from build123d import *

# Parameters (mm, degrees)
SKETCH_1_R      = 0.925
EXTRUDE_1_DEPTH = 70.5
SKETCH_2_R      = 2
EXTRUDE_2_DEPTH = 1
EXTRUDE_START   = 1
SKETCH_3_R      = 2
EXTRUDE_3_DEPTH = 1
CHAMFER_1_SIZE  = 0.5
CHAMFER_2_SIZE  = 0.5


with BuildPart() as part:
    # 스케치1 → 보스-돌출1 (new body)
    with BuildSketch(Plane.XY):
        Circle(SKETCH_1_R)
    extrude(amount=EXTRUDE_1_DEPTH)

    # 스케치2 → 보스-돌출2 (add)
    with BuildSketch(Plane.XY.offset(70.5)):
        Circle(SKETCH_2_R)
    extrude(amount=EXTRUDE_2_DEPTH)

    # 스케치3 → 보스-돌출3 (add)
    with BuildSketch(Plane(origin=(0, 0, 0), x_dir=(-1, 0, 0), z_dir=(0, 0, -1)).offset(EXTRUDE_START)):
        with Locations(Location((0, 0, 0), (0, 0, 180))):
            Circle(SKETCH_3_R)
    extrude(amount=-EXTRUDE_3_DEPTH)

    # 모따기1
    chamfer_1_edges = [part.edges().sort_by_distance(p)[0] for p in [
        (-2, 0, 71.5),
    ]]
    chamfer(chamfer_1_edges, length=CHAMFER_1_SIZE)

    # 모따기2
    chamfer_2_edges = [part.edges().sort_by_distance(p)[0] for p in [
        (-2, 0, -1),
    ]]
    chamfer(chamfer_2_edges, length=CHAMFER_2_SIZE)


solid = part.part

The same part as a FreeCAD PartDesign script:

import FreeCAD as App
import Part
import Sketcher
from FreeCAD import Vector
Q = App.Units.Quantity


def edges_at(feature, points):
    """Names of the edges that pass closest to the given points."""
    edges = feature.Shape.Edges
    near = lambda p: min(range(len(edges)), key=lambda i: edges[i].distToShape(Part.Vertex(*p))[0])
    return sorted({f"Edge{near(p) + 1}" for p in points})

doc = App.newDocument("Part")
body = doc.addObject("PartDesign::Body", "Body")

sketch1 = body.newObject("Sketcher::SketchObject", "Sketch")
sketch1.AttachmentSupport = (doc.getObject("XY_Plane"), [""])
sketch1.MapMode = "FlatFace"
sketch1.addGeometry(Part.Circle(Vector(0, 0, 0), Vector(0, 0, 1), 0.9), False)
sketch1.addConstraint([
    Sketcher.Constraint("Coincident", 0, 3, -1, 1),
    Sketcher.Constraint("Diameter", 0, Q("1.85 mm")),
])
pad1 = body.newObject("PartDesign::Pad", "Pad")
pad1.Profile = sketch1
pad1.Length = 70.5

sketch2 = body.newObject("Sketcher::SketchObject", "Sketch001")
sketch2.AttachmentSupport = (doc.getObject("XY_Plane"), [""])
sketch2.MapMode = "FlatFace"
sketch2.AttachmentOffset = App.Placement(Vector(0, 0, 70.5), App.Rotation())
sketch2.addGeometry(Part.Circle(Vector(0, 0, 0), Vector(0, 0, 1), 2), False)
sketch2.addConstraint([
    Sketcher.Constraint("Coincident", 0, 3, -1, 1),
    Sketcher.Constraint("Diameter", 0, Q("4 mm")),
])
pad2 = body.newObject("PartDesign::Pad", "Pad001")
pad2.Profile = sketch2
pad2.Length = 1

sketch3 = body.newObject("Sketcher::SketchObject", "Sketch002")
sketch3.AttachmentSupport = (doc.getObject("XY_Plane"), [""])
sketch3.MapMode = "FlatFace"
sketch3.AttachmentOffset = App.Placement(Vector(0, 0, -1), App.Rotation())
sketch3.addGeometry(Part.Circle(Vector(0, 0, 0), Vector(0, 0, 1), 2), False)
sketch3.addConstraint([
    Sketcher.Constraint("Coincident", 0, 3, -1, 1),
    Sketcher.Constraint("Diameter", 0, Q("4 mm")),
])
pad3 = body.newObject("PartDesign::Pad", "Pad002")
pad3.Profile = sketch3
pad3.Length = 1
doc.recompute()

chamfer = body.newObject("PartDesign::Chamfer", "Chamfer")
chamfer.Base = (pad3, edges_at(pad3, [(-2, 0, 71.5)]))
chamfer.Size = 0.5
doc.recompute()

chamfer2 = body.newObject("PartDesign::Chamfer", "Chamfer001")
chamfer2.Base = (chamfer, edges_at(chamfer, [(-2, 0, -1)]))
chamfer2.Size = 0.5

doc.recompute()
